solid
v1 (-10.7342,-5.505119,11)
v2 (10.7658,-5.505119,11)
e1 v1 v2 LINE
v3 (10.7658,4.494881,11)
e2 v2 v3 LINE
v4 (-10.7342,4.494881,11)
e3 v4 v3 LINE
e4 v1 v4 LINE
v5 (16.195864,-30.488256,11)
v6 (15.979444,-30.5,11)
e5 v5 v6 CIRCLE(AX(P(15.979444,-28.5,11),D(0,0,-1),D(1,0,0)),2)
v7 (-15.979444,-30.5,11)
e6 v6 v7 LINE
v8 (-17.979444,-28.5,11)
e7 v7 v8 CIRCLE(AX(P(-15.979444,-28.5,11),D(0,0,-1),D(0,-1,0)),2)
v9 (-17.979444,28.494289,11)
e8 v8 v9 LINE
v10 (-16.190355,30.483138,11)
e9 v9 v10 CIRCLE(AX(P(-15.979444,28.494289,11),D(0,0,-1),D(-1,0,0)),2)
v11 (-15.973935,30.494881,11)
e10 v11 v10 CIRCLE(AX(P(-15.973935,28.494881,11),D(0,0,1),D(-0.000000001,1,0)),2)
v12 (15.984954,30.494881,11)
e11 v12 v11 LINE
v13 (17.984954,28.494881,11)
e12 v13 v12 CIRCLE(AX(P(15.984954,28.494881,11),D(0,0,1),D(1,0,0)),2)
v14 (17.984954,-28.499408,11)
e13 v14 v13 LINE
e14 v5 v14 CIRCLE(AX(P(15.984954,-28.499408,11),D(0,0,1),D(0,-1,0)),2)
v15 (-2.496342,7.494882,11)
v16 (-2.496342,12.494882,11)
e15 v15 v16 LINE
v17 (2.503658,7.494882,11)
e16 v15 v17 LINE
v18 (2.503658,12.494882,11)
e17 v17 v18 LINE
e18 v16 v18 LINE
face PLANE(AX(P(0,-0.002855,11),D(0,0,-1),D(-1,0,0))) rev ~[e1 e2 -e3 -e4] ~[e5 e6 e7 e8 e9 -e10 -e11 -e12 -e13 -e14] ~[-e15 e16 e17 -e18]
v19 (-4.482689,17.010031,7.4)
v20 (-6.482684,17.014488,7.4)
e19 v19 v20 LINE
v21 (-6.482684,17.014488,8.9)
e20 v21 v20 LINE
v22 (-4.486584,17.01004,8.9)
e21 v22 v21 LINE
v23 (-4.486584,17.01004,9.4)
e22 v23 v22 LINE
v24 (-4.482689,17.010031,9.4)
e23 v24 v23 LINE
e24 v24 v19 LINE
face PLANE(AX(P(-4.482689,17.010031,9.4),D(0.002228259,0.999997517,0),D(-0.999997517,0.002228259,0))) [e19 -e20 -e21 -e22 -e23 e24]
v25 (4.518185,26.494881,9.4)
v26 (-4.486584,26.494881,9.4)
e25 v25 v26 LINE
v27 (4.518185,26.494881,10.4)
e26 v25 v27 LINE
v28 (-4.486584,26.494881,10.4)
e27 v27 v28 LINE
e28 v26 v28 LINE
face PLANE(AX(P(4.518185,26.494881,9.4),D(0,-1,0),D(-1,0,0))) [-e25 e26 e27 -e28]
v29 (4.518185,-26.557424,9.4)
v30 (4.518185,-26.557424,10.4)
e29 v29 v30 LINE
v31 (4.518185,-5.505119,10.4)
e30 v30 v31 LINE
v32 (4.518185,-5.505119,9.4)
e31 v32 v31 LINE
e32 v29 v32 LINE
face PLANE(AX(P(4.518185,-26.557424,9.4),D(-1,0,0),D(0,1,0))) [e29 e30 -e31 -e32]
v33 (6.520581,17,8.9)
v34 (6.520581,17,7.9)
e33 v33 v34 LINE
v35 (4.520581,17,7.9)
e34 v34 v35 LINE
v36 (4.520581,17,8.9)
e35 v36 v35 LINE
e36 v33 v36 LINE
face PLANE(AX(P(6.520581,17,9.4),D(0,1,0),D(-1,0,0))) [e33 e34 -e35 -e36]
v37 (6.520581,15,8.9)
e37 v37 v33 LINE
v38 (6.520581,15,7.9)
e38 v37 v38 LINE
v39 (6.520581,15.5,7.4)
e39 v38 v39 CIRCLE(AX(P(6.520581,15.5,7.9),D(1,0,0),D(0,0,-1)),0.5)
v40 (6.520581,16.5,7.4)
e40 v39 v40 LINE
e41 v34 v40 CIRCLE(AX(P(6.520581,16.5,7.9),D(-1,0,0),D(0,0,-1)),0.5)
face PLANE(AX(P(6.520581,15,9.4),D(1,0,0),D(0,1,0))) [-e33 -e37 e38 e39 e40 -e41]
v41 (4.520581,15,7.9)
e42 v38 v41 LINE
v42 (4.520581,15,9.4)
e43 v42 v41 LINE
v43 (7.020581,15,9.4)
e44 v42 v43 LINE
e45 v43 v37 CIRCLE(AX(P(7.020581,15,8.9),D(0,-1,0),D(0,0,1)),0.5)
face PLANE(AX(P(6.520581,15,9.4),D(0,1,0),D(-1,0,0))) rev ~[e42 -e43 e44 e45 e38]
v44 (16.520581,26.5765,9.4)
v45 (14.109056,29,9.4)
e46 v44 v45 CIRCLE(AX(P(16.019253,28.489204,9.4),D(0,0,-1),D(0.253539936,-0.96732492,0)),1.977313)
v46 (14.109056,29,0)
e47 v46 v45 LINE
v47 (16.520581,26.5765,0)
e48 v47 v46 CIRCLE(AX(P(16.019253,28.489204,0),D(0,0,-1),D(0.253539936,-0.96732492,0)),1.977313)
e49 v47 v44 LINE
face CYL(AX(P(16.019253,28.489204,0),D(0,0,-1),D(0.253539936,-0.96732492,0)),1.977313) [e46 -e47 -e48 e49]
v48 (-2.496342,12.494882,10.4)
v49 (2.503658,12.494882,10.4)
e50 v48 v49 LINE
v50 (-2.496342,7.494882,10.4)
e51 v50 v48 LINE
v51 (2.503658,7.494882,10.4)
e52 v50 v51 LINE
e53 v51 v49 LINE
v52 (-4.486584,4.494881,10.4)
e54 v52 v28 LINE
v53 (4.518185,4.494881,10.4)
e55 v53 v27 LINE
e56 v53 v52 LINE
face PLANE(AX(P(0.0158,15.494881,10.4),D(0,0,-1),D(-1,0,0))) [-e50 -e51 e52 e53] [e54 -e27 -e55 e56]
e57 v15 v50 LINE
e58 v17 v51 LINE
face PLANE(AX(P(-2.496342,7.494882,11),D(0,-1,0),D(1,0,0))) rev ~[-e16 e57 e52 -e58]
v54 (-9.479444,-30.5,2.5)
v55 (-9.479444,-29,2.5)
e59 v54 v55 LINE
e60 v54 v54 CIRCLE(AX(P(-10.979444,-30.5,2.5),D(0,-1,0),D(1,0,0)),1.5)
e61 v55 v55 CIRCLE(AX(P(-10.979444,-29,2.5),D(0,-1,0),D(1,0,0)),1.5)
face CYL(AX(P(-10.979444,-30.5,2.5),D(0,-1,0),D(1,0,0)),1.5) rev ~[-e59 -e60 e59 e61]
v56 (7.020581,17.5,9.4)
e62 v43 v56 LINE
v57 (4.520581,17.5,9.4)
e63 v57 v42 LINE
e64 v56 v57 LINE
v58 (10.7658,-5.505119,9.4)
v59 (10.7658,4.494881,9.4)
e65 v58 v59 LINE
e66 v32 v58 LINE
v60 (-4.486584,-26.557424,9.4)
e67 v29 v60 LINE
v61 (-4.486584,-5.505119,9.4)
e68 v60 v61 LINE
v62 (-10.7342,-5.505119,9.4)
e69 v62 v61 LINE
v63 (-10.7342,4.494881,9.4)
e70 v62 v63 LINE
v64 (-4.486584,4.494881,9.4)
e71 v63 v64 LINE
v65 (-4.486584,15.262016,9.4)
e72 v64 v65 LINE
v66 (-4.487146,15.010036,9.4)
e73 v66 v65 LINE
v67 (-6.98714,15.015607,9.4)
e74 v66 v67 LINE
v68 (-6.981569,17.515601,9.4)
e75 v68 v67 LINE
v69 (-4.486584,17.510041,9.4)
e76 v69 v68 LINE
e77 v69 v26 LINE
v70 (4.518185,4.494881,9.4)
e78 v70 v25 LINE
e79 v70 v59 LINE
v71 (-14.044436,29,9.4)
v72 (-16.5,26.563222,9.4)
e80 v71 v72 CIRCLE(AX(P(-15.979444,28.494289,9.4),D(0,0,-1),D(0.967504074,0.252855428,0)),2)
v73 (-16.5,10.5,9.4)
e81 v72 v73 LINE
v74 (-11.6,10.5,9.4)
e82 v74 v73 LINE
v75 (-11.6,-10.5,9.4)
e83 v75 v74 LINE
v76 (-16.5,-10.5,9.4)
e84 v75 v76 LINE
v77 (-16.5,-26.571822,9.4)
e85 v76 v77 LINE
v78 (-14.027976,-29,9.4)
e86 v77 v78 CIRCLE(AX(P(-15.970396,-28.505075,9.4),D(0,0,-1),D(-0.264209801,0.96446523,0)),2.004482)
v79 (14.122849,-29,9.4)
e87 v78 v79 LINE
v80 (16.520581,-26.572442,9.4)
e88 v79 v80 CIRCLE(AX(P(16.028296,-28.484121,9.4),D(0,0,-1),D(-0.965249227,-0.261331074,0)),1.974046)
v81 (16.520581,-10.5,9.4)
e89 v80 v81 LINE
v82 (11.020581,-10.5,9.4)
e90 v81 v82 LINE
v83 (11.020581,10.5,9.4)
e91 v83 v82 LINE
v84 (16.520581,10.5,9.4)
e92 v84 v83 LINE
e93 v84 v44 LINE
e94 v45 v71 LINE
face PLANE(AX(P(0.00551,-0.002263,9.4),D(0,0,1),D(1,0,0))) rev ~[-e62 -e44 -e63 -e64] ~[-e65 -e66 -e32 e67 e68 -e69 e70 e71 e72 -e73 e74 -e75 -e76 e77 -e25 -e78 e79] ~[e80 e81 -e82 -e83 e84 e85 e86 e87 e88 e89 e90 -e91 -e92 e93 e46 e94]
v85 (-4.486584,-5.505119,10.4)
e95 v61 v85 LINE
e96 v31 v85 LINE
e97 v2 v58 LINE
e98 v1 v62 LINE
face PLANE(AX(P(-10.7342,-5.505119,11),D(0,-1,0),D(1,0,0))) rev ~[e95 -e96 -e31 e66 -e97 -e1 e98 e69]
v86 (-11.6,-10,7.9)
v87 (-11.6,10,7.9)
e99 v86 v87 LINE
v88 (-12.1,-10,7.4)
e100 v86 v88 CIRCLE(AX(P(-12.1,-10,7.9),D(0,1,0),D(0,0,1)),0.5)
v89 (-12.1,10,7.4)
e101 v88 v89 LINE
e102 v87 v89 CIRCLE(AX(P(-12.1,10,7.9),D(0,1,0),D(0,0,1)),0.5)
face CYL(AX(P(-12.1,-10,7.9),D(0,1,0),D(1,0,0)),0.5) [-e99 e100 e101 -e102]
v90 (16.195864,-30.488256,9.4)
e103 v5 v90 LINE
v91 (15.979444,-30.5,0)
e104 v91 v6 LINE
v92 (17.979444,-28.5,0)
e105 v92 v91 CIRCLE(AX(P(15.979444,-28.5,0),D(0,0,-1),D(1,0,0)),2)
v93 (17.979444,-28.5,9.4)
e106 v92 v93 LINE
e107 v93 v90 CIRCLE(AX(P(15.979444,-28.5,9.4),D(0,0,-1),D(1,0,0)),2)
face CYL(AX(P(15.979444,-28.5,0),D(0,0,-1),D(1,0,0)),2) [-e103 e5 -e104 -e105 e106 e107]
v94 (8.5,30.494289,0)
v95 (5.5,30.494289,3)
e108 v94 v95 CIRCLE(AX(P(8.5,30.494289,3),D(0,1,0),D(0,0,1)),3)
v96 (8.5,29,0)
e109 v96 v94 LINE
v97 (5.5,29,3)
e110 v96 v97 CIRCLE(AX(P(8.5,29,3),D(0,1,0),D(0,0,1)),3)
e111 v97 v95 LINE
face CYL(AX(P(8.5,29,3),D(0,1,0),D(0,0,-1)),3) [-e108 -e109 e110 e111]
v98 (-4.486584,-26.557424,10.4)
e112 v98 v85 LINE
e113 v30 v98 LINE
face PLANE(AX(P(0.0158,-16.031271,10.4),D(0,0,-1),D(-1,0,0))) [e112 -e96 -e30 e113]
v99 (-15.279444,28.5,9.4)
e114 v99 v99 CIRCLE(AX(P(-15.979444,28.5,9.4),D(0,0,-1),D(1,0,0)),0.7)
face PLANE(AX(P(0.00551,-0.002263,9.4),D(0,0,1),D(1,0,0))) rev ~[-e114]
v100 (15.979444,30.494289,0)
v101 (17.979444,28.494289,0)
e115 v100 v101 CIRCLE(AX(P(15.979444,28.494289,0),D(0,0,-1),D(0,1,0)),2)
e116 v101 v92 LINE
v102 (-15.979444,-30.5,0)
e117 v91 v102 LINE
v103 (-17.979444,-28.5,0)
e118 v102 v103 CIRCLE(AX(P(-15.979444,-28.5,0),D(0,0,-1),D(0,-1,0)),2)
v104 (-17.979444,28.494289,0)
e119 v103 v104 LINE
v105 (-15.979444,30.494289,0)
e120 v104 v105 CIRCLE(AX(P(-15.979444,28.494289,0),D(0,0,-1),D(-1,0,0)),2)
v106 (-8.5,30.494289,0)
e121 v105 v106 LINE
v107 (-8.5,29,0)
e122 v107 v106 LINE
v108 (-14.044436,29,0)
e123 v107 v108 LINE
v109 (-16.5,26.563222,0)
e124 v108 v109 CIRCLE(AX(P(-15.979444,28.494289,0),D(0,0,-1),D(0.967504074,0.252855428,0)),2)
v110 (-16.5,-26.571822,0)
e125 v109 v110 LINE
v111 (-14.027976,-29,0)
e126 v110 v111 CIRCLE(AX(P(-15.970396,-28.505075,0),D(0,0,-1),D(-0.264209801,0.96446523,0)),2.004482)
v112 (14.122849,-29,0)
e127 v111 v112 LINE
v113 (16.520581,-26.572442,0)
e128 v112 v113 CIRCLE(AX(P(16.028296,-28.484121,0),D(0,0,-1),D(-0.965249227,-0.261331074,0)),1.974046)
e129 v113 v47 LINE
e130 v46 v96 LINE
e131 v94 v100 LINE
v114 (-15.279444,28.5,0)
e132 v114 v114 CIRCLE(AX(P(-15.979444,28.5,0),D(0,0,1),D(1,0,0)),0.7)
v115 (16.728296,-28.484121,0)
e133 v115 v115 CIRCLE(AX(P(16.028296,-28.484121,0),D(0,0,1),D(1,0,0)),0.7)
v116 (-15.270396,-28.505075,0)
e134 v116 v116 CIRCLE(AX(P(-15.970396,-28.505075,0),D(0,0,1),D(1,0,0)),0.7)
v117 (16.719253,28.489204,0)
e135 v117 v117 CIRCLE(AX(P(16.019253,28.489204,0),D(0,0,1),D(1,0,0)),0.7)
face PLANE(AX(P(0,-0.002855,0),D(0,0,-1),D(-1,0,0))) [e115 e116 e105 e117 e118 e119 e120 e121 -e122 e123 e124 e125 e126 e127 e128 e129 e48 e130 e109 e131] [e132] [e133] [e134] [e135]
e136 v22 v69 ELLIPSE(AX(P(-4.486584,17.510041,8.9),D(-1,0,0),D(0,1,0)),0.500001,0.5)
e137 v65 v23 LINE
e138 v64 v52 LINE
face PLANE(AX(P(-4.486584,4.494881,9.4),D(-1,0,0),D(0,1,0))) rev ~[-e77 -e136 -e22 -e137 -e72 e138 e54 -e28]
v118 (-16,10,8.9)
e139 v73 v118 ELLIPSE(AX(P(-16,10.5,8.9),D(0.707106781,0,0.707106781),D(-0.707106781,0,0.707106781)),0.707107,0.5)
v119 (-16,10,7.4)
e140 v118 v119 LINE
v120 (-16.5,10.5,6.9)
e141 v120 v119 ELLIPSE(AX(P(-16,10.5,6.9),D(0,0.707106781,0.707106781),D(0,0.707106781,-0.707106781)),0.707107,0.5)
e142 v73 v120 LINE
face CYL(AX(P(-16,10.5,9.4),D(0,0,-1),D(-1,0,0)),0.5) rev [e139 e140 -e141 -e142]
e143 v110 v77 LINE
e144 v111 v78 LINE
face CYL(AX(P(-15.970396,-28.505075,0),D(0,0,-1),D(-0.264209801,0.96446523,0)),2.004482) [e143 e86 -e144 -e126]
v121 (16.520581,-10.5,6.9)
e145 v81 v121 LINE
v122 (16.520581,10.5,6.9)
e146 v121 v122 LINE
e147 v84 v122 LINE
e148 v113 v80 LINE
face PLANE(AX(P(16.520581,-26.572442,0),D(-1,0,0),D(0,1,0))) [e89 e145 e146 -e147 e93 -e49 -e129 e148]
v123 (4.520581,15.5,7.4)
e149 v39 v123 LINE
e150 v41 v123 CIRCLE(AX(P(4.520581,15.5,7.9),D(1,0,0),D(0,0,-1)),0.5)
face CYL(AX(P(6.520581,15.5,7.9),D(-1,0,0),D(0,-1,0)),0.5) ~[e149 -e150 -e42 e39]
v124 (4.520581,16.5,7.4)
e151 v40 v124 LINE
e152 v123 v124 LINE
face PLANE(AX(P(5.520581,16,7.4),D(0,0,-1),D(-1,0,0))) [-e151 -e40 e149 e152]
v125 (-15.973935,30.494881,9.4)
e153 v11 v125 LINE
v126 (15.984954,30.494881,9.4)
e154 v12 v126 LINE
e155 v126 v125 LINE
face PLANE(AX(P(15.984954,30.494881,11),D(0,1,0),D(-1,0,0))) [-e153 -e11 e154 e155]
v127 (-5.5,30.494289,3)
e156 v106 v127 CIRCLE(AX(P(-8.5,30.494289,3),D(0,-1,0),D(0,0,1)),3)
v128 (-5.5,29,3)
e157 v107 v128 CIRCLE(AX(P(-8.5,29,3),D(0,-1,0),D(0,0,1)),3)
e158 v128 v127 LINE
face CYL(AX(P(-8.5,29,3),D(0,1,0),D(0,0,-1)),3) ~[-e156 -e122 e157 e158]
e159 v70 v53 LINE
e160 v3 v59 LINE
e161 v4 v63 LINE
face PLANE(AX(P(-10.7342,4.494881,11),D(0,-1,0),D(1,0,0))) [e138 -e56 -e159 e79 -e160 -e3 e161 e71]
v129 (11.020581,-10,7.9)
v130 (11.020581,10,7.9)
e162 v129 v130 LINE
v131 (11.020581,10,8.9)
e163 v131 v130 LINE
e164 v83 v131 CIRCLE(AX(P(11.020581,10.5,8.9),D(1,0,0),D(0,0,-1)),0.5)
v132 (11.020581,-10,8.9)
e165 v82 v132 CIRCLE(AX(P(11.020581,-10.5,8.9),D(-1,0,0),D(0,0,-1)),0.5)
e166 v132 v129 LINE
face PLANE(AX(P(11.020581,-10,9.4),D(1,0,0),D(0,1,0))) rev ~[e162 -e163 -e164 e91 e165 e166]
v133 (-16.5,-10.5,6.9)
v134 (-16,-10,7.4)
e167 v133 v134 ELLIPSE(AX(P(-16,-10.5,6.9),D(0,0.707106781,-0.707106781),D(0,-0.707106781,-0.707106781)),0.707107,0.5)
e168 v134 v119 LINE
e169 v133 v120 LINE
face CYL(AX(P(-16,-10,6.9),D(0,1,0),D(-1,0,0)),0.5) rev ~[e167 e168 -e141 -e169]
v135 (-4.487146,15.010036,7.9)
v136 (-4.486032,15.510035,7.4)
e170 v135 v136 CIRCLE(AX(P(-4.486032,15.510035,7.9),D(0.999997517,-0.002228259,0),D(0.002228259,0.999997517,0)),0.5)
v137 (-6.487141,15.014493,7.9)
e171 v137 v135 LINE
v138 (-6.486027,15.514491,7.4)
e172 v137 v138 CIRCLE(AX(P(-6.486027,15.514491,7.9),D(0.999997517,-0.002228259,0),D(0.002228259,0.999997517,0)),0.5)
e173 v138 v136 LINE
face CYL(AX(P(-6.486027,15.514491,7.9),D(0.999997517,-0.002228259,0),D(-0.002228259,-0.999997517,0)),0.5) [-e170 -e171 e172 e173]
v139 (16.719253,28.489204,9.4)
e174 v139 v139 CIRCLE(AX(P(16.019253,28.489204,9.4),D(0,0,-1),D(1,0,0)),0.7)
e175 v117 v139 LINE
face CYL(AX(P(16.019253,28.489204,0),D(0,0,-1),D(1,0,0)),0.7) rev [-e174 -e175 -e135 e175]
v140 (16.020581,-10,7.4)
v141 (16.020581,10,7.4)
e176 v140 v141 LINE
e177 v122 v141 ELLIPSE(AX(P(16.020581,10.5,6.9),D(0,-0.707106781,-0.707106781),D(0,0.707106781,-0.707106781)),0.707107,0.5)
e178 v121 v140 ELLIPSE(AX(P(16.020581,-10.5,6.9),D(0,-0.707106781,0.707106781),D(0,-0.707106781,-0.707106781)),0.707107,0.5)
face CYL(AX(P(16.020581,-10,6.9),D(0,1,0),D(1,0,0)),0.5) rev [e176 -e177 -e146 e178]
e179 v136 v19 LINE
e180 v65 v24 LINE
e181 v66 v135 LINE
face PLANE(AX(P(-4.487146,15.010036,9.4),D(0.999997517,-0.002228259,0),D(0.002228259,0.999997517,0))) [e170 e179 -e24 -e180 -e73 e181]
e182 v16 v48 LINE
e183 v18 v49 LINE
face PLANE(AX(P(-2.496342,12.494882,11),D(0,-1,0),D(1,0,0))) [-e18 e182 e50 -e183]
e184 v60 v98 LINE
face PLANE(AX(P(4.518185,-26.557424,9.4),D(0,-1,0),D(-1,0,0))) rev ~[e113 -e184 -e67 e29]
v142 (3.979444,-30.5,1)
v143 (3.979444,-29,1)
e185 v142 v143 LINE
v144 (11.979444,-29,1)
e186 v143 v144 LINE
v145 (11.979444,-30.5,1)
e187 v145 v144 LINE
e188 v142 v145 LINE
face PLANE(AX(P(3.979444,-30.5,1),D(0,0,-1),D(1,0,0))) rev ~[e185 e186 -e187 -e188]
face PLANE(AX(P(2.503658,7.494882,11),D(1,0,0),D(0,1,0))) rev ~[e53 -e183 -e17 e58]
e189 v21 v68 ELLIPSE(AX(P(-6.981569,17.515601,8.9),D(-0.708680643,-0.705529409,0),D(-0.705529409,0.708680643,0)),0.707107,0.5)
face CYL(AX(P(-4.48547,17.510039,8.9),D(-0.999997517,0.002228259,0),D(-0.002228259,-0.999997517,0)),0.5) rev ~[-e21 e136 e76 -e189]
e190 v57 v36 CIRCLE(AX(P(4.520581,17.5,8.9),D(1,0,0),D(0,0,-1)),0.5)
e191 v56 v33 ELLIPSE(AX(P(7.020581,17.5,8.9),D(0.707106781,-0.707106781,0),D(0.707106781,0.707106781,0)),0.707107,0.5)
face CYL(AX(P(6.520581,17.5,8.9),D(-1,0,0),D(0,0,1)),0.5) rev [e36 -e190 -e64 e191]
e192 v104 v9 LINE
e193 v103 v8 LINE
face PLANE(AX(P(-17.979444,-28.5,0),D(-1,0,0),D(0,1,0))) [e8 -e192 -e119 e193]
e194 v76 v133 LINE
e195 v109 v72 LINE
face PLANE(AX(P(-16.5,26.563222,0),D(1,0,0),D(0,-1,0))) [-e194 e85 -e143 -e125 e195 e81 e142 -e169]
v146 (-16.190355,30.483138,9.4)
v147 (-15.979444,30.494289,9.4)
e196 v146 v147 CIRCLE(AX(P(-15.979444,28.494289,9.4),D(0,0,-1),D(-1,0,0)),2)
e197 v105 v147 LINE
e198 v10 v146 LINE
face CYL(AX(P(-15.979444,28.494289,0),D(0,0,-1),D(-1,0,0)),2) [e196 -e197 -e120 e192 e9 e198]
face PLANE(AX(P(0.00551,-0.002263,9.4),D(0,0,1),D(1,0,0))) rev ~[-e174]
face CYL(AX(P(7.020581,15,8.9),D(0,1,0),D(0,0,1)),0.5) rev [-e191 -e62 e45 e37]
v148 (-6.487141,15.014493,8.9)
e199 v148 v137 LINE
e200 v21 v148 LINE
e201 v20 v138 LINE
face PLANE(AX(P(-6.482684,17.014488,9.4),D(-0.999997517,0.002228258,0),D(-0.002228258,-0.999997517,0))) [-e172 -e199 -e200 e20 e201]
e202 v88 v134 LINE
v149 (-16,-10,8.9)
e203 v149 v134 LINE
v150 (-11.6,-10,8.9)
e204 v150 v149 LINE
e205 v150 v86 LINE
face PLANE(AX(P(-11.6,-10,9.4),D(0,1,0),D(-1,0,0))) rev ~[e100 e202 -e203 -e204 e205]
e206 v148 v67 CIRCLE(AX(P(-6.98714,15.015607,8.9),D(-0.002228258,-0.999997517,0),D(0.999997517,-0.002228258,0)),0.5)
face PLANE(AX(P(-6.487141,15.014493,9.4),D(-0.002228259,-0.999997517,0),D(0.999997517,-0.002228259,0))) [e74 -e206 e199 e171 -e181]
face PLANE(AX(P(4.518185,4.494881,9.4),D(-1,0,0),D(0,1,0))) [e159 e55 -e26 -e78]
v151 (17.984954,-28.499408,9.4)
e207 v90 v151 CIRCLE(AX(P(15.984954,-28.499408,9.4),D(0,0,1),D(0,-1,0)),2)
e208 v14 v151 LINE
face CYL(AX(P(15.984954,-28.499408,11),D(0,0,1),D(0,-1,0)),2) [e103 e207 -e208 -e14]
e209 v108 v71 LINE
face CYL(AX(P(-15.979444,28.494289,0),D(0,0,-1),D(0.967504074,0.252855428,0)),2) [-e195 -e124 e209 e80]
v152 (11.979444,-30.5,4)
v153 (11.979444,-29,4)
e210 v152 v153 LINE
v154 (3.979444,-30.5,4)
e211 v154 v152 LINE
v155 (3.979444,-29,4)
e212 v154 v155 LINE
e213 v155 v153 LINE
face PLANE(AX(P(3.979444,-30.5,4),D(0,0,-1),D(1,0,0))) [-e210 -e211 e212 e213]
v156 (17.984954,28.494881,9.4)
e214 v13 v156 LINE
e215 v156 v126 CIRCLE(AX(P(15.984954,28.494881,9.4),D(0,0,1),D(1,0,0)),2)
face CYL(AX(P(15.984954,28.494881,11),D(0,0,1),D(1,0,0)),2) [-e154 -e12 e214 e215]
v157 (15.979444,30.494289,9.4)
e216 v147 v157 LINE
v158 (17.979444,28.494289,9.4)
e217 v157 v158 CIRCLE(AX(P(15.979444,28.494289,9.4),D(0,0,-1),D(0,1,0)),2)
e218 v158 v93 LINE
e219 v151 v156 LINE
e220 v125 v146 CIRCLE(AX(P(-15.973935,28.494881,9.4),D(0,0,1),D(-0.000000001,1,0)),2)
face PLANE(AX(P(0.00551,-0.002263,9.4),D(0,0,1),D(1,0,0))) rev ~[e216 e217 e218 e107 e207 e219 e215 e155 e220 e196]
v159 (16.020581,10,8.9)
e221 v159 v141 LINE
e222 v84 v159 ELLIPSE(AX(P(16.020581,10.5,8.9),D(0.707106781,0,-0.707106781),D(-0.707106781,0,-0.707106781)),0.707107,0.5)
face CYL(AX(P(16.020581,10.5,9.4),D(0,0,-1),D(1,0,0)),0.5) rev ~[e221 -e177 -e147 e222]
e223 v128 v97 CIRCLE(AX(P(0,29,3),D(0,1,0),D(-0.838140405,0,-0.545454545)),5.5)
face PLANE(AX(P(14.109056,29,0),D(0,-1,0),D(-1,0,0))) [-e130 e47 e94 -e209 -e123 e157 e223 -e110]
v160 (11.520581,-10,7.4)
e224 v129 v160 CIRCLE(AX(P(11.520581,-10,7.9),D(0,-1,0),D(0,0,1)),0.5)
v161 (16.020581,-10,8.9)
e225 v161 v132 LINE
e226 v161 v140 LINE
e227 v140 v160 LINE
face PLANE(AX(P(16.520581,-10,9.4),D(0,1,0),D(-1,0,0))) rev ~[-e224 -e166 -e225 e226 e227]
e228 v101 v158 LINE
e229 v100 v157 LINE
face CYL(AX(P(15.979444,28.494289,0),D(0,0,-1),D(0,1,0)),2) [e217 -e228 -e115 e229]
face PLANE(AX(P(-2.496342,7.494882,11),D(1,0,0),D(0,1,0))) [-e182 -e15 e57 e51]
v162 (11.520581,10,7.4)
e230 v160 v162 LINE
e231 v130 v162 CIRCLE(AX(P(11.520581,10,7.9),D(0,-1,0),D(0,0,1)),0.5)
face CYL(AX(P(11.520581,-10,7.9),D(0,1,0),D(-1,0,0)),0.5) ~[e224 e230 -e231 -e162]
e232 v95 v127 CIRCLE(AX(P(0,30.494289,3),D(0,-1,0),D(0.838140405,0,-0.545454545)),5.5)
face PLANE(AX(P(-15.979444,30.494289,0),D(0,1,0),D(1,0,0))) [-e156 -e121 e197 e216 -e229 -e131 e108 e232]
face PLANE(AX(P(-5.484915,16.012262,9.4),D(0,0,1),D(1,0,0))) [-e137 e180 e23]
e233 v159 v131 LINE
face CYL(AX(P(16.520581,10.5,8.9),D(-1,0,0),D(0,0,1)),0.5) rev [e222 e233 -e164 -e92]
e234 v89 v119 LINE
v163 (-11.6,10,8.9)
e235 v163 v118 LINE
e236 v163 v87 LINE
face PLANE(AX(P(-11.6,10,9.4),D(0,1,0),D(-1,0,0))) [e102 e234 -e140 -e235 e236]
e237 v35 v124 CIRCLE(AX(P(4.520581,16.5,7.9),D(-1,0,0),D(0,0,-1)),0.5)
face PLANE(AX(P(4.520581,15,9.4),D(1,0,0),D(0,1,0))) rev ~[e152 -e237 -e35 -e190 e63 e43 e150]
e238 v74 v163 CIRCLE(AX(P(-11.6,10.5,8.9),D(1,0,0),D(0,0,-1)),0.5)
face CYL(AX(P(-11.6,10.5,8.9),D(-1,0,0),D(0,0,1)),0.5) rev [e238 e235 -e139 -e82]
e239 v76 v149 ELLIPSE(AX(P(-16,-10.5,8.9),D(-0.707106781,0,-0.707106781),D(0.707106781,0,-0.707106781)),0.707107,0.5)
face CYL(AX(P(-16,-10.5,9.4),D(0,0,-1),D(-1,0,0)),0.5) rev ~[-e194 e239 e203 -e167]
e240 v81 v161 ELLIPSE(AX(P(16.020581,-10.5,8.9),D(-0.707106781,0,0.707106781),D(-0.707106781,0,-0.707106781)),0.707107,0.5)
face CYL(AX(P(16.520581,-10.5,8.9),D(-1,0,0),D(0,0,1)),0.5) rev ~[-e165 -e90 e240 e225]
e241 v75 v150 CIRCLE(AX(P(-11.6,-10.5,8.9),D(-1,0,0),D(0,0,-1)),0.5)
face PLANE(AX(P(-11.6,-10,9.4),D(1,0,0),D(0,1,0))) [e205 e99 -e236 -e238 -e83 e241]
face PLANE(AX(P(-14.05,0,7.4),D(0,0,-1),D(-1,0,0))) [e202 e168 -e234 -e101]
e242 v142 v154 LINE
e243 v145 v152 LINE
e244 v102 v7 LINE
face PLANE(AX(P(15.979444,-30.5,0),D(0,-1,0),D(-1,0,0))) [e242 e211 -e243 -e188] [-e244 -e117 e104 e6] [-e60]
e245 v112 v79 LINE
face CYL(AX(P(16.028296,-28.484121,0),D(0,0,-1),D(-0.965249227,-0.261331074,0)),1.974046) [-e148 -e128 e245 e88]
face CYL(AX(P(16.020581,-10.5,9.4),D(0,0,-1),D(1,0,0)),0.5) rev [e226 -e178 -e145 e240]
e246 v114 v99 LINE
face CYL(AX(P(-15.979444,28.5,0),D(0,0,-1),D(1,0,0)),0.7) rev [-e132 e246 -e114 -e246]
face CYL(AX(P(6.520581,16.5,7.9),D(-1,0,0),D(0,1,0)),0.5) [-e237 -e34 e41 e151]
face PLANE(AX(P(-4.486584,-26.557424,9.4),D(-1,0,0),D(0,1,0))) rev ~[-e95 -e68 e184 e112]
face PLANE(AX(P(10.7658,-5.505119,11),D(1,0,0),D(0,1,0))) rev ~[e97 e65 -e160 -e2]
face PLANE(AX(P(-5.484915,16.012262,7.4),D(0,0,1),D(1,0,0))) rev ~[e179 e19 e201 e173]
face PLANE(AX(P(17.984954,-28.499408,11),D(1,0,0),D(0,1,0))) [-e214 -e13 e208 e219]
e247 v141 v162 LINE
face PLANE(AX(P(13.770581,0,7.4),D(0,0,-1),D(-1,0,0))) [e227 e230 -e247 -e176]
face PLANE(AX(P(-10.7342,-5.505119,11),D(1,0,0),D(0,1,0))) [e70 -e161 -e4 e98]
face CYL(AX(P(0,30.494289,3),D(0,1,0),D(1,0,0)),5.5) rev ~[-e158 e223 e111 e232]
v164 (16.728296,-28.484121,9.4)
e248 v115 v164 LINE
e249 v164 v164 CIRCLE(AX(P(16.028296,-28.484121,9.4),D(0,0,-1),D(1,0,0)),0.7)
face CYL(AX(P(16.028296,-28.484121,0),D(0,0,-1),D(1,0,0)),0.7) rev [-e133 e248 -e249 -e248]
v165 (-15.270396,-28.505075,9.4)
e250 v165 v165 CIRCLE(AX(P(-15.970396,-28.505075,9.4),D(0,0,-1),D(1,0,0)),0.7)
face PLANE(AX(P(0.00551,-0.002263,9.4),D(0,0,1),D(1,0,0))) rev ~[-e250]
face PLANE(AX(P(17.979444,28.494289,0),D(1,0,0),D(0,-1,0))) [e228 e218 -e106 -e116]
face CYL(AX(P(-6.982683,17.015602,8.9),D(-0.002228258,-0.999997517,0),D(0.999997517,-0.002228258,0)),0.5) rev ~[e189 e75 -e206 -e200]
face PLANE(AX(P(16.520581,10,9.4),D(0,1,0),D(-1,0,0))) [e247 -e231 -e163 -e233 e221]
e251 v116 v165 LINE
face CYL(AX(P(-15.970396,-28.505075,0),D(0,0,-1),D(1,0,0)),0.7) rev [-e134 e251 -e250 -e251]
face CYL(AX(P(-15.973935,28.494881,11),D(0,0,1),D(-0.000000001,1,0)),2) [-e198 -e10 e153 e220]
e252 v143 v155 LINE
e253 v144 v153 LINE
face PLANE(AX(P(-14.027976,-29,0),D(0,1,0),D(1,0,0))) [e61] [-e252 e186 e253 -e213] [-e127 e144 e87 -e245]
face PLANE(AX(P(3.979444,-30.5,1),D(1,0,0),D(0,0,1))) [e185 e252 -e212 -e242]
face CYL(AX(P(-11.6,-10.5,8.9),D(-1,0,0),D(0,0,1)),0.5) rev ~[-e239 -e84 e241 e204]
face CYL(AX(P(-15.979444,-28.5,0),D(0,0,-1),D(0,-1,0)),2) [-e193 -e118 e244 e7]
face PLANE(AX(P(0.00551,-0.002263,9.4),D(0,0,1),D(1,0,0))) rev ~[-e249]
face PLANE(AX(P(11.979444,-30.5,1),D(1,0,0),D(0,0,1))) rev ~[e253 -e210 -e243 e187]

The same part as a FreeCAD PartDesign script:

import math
import FreeCAD as App
import Part
import Sketcher
Q = App.Units.Quantity


def edges_at(feature, points):
    """Names of the edges that pass closest to the given points."""
    edges = feature.Shape.Edges
    near = lambda p: min(range(len(edges)), key=lambda i: edges[i].distToShape(Part.Vertex(*p))[0])
    return sorted({f"Edge{near(p) + 1}" for p in points})

doc = App.newDocument("Part")
body = doc.addObject("PartDesign::Body", "Body")

sketch1 = body.newObject("Sketcher::SketchObject", "Sketch")
sketch1.AttachmentSupport = (doc.getObject("XY_Plane"), [""])
sketch1.MapMode = "FlatFace"
sketch1.addGeometry(Part.LineSegment(App.Vector(16, 30.5, 0), App.Vector(-16, 30.5, 0)), False)
sketch1.addGeometry(Part.ArcOfCircle(Part.Circle(App.Vector(-16, 28.5, 0), App.Vector(0, 0, 1), 2), math.radians(90), math.radians(180)), False)
sketch1.addGeometry(Part.LineSegment(App.Vector(-18, 28.5, 0), App.Vector(-18, -28.5, 0)), False)
sketch1.addGeometry(Part.ArcOfCircle(Part.Circle(App.Vector(-16, -28.5, 0), App.Vector(0, 0, 1), 2), math.radians(180), math.radians(270)), False)
sketch1.addGeometry(Part.LineSegment(App.Vector(-16, -30.5, 0), App.Vector(16, -30.5, 0)), False)
sketch1.addGeometry(Part.ArcOfCircle(Part.Circle(App.Vector(16, -28.5, 0), App.Vector(0, 0, 1), 2), math.radians(-90), math.radians(0)), False)
sketch1.addGeometry(Part.LineSegment(App.Vector(18, -28.5, 0), App.Vector(18, 28.5, 0)), False)
sketch1.addGeometry(Part.ArcOfCircle(Part.Circle(App.Vector(16, 28.5, 0), App.Vector(0, 0, 1), 2), math.radians(0), math.radians(90)), False)
sketch1.addGeometry(Part.Circle(App.Vector(16, -28.5, 0), App.Vector(0, 0, 1), 0.7), False)
sketch1.addGeometry(Part.Circle(App.Vector(-16, -28.5, 0), App.Vector(0, 0, 1), 0.7), False)
sketch1.addGeometry(Part.Circle(App.Vector(16, 28.5, 0), App.Vector(0, 0, 1), 0.7), False)
sketch1.addGeometry(Part.ArcOfCircle(Part.Circle(App.Vector(-16, -28.5, 0), App.Vector(0, 0, 1), 2), math.radians(-14), math.radians(105)), False)
sketch1.addGeometry(Part.LineSegment(App.Vector(-16.5, -26.6, 0), App.Vector(-16.5, 26.6, 0)), False)
sketch1.addGeometry(Part.ArcOfCircle(Part.Circle(App.Vector(-16, 28.5, 0), App.Vector(0, 0, 1), 2), math.radians(-105), math.radians(15)), False)
sketch1.addGeometry(Part.LineSegment(App.Vector(-14, 29, 0), App.Vector(14.1, 29, 0)), False)
sketch1.addGeometry(Part.ArcOfCircle(Part.Circle(App.Vector(16, 28.5, 0), App.Vector(0, 0, 1), 2), math.radians(165), math.radians(285)), False)
sketch1.addGeometry(Part.LineSegment(App.Vector(16.5, 26.6, 0), App.Vector(16.5, -26.6, 0)), False)
sketch1.addGeometry(Part.ArcOfCircle(Part.Circle(App.Vector(16, -28.5, 0), App.Vector(0, 0, 1), 2), math.radians(76), math.radians(195)), False)
sketch1.addGeometry(Part.LineSegment(App.Vector(14.1, -29, 0), App.Vector(-14, -29, 0)), False)
sketch1.addGeometry(Part.Circle(App.Vector(-16, 28.5, 0), App.Vector(0, 0, 1), 0.7), False)
sketch1.addConstraint(Sketcher.Constraint("Tangent", 0, 2, 1, 1))
sketch1.addConstraint(Sketcher.Constraint("Tangent", 1, 2, 2, 1))
sketch1.addConstraint(Sketcher.Constraint("Tangent", 2, 2, 3, 1))
sketch1.addConstraint(Sketcher.Constraint("Tangent", 3, 2, 4, 1))
sketch1.addConstraint(Sketcher.Constraint("Tangent", 4, 2, 5, 1))
sketch1.addConstraint(Sketcher.Constraint("Tangent", 5, 2, 6, 1))
sketch1.addConstraint(Sketcher.Constraint("Tangent", 6, 2, 7, 1))
sketch1.addConstraint(Sketcher.Constraint("Tangent", 7, 2, 0, 1))
sketch1.addConstraint(Sketcher.Constraint("Coincident", 11, 2, 12, 1))
sketch1.addConstraint(Sketcher.Constraint("Coincident", 12, 2, 13, 1))
sketch1.addConstraint(Sketcher.Constraint("Coincident", 13, 2, 14, 1))
sketch1.addConstraint(Sketcher.Constraint("Coincident", 14, 2, 15, 1))
sketch1.addConstraint(Sketcher.Constraint("Coincident", 15, 2, 16, 1))
sketch1.addConstraint(Sketcher.Constraint("Coincident", 16, 2, 17, 1))
sketch1.addConstraint(Sketcher.Constraint("Coincident", 17, 2, 18, 1))
sketch1.addConstraint(Sketcher.Constraint("Coincident", 18, 2, 11, 1))
sketch1.addConstraint(Sketcher.Constraint("Horizontal", 0))
sketch1.addConstraint(Sketcher.Constraint("Vertical", 2))
sketch1.addConstraint(Sketcher.Constraint("Horizontal", 4))
sketch1.addConstraint(Sketcher.Constraint("Vertical", 6))
sketch1.addConstraint(Sketcher.Constraint("Vertical", 12))
sketch1.addConstraint(Sketcher.Constraint("Horizontal", 14))
sketch1.addConstraint(Sketcher.Constraint("Vertical", 16))
sketch1.addConstraint(Sketcher.Constraint("Horizontal", 18))
sketch1.addConstraint(Sketcher.Constraint("Coincident", 11, 3, 9, 3))
sketch1.addConstraint(Sketcher.Constraint("Coincident", 13, 3, 1, 3))
sketch1.addConstraint(Sketcher.Constraint("Coincident", 15, 3, 10, 3))
sketch1.addConstraint(Sketcher.Constraint("Coincident", 17, 3, 8, 3))
sketch1.addConstraint(Sketcher.Constraint("Equal", 1, 3))
sketch1.addConstraint(Sketcher.Constraint("Equal", 3, 5))
sketch1.addConstraint(Sketcher.Constraint("Equal", 5, 7))
sketch1.addConstraint(Sketcher.Constraint("Equal", 8, 9))
sketch1.addConstraint(Sketcher.Constraint("Equal", 9, 10))
sketch1.addConstraint(Sketcher.Constraint("Equal", 7, 13))
sketch1.addConstraint(Sketcher.Constraint("Equal", 10, 19))
sketch1.addConstraint(Sketcher.Constraint("Symmetric", 5, 3, 19, 3, -1, 1))
sketch1.addConstraint(Sketcher.Constraint("Vertical", 13, 3, 19, 3))
sketch1.addConstraint(Sketcher.Constraint("Radius", 1, Q("2 mm")))
sketch1.addConstraint(Sketcher.Constraint("Diameter", 8, Q("1.4 mm")))
sketch1.addConstraint(Sketcher.Constraint("DistanceY", -1, 1, 13, 2, Q("29 mm")))
sketch1.addConstraint(Sketcher.Constraint("DistanceY", 17, 2, -1, 1, Q("29 mm")))
sketch1.addConstraint(Sketcher.Constraint("DistanceY", 3, 3, -1, 1, Q("28.5 mm")))
sketch1.addConstraint(Sketcher.Constraint("DistanceX", 11, 2, -1, 1, Q("16.5 mm")))
sketch1.addConstraint(Sketcher.Constraint("Radius", 11, Q("2.004482 mm")))
sketch1.addConstraint(Sketcher.Constraint("Radius", 15, Q("1.977313 mm")))
sketch1.addConstraint(Sketcher.Constraint("Radius", 17, Q("1.974046 mm")))
sketch1.addConstraint(Sketcher.Constraint("DistanceX", 0, 2, 0, 1, Q("31.958889 mm")))
sketch1.addConstraint(Sketcher.Constraint("DistanceX", 14, 1, 14, 2, Q("28.153492 mm")))
sketch1.addConstraint(Sketcher.Constraint("DistanceY", 2, 2, 2, 1, Q("56.99429 mm")))
sketch1.addConstraint(Sketcher.Constraint("DistanceY", -1, 1, 15, 2, Q("26.5765 mm")))
sketch1.addConstraint(Sketcher.Constraint("DistanceX", 18, 2, 18, 1, Q("28.150825 mm")))
sketch1.addConstraint(Sketcher.Constraint("DistanceY", 12, 1, 12, 2, Q("53.135043 mm")))
sketch1.addConstraint(Sketcher.Constraint("DistanceY", 16, 2, 16, 1, Q("53.148942 mm")))
sketch1.addConstraint(Sketcher.Constraint("DistanceY", 8, 3, -1, 1, Q("28.484121 mm")))
sketch1.addConstraint(Sketcher.Constraint("DistanceX", -1, 1, 15, 2, Q("16.520581 mm")))
pad1 = body.newObject("PartDesign::Pad", "Pad")
pad1.Profile = sketch1
pad1.Length = 11

sketch2 = body.newObject("Sketcher::SketchObject", "Sketch001")
sketch2.AttachmentSupport = (doc.getObject("XY_Plane"), [""])
sketch2.MapMode = "FlatFace"
sketch2.AttachmentOffset = App.Placement(App.Vector(0, 0, 11), App.Rotation())
sketch2.addGeometry(Part.LineSegment(App.Vector(-18, 28.5, 0), App.Vector(-18, -28.5, 0)), False)
sketch2.addGeometry(Part.ArcOfCircle(Part.Circle(App.Vector(-16, -28.5, 0), App.Vector(0, 0, 1), 2), math.radians(-180), math.radians(-90)), False)
sketch2.addGeometry(Part.LineSegment(App.Vector(-16, -30.5, 0), App.Vector(16, -30.5, 0)), False)
sketch2.addGeometry(Part.ArcOfCircle(Part.Circle(App.Vector(16, -28.5, 0), App.Vector(0, 0, 1), 2), math.radians(-90), math.radians(0)), False)
sketch2.addGeometry(Part.LineSegment(App.Vector(18, -28.5, 0), App.Vector(18, 28.5, 0)), False)
sketch2.addGeometry(Part.ArcOfCircle(Part.Circle(App.Vector(16, 28.5, 0), App.Vector(0, 0, 1), 2), math.radians(0), math.radians(90)), False)
sketch2.addGeometry(Part.LineSegment(App.Vector(16, 30.5, 0), App.Vector(-16, 30.5, 0)), False)
sketch2.addGeometry(Part.ArcOfCircle(Part.Circle(App.Vector(-16, 28.5, 0), App.Vector(0, 0, 1), 2), math.radians(90), math.radians(180)), False)
sketch2.addGeometry(Part.LineSegment(App.Vector(10.8, -5.5, 0), App.Vector(-10.7, -5.5, 0)), False)
sketch2.addGeometry(Part.LineSegment(App.Vector(-10.7, -5.5, 0), App.Vector(-10.7, 4.5, 0)), False)
sketch2.addGeometry(Part.LineSegment(App.Vector(-10.7, 4.5, 0), App.Vector(10.8, 4.5, 0)), False)
sketch2.addGeometry(Part.LineSegment(App.Vector(10.8, 4.5, 0), App.Vector(10.8, -5.5, 0)), False)
sketch2.addConstraint(Sketcher.Constraint("Tangent", 0, 2, 1, 1))
sketch2.addConstraint(Sketcher.Constraint("Tangent", 1, 2, 2, 1))
sketch2.addConstraint(Sketcher.Constraint("Tangent", 2, 2, 3, 1))
sketch2.addConstraint(Sketcher.Constraint("Tangent", 3, 2, 4, 1))
sketch2.addConstraint(Sketcher.Constraint("Tangent", 4, 2, 5, 1))
sketch2.addConstraint(Sketcher.Constraint("Tangent", 5, 2, 6, 1))
sketch2.addConstraint(Sketcher.Constraint("Tangent", 6, 2, 7, 1))
sketch2.addConstraint(Sketcher.Constraint("Tangent", 7, 2, 0, 1))
sketch2.addConstraint(Sketcher.Constraint("Coincident", 8, 2, 9, 1))
sketch2.addConstraint(Sketcher.Constraint("Coincident", 9, 2, 10, 1))
sketch2.addConstraint(Sketcher.Constraint("Coincident", 10, 2, 11, 1))
sketch2.addConstraint(Sketcher.Constraint("Coincident", 11, 2, 8, 1))
sketch2.addConstraint(Sketcher.Constraint("Vertical", 0))
sketch2.addConstraint(Sketcher.Constraint("Horizontal", 2))
sketch2.addConstraint(Sketcher.Constraint("Vertical", 4))
sketch2.addConstraint(Sketcher.Constraint("Horizontal", 6))
sketch2.addConstraint(Sketcher.Constraint("Horizontal", 8))
sketch2.addConstraint(Sketcher.Constraint("Vertical", 9))
sketch2.addConstraint(Sketcher.Constraint("Horizontal", 10))
sketch2.addConstraint(Sketcher.Constraint("Vertical", 11))
sketch2.addConstraint(Sketcher.Constraint("Equal", 1, 3))
sketch2.addConstraint(Sketcher.Constraint("Equal", 3, 5))
sketch2.addConstraint(Sketcher.Constraint("Equal", 5, 7))
sketch2.addConstraint(Sketcher.Constraint("Radius", 1, Q("2 mm")))
sketch2.addConstraint(Sketcher.Constraint("DistanceY", 9, 1, 9, 2, Q("10 mm")))
sketch2.addConstraint(Sketcher.Constraint("DistanceX", 8, 2, 8, 1, Q("21.5 mm")))
sketch2.addConstraint(Sketcher.Constraint("DistanceY", 8, 2, 7, 3, Q("34 mm")))
sketch2.addConstraint(Sketcher.Constraint("DistanceX", 2, 1, 2, 2, Q("31.958889 mm")))
sketch2.addConstraint(Sketcher.Constraint("DistanceY", 0, 2, 0, 1, Q("56.99429 mm")))
sketch2.addConstraint(Sketcher.Constraint("DistanceX", 8, 2, -1, 1, Q("10.7342 mm")))
sketch2.addConstraint(Sketcher.Constraint("DistanceY", 1, 3, -1, 1, Q("28.499408 mm")))
sketch2.addConstraint(Sketcher.Constraint("DistanceX", 1, 3, -1, 1, Q("15.973935 mm")))
pad2 = body.newObject("PartDesign::Pad", "Pad001")
pad2.Profile = sketch2
pad2.Length = 1.6
pad2.Reversed = True

sketch3 = body.newObject("Sketcher::SketchObject", "Sketch002")
sketch3.AttachmentSupport = (doc.getObject("XY_Plane"), [""])
sketch3.MapMode = "FlatFace"
sketch3.AttachmentOffset = App.Placement(App.Vector(0, 0, 11), App.Rotation())
sketch3.addGeometry(Part.LineSegment(App.Vector(-2, 12, 0), App.Vector(-2, 7, 0)), False)
sketch3.addGeometry(Part.LineSegment(App.Vector(-2, 7, 0), App.Vector(3, 7, 0)), False)
sketch3.addGeometry(Part.LineSegment(App.Vector(3, 7, 0), App.Vector(3, 12, 0)), False)
sketch3.addGeometry(Part.LineSegment(App.Vector(3, 12, 0), App.Vector(-2, 12, 0)), False)
sketch3.addConstraint(Sketcher.Constraint("Coincident", 0, 2, 1, 1))
sketch3.addConstraint(Sketcher.Constraint("Coincident", 1, 2, 2, 1))
sketch3.addConstraint(Sketcher.Constraint("Coincident", 2, 2, 3, 1))
sketch3.addConstraint(Sketcher.Constraint("Coincident", 3, 2, 0, 1))
sketch3.addConstraint(Sketcher.Constraint("Vertical", 0))
sketch3.addConstraint(Sketcher.Constraint("Horizontal", 1))
sketch3.addConstraint(Sketcher.Constraint("Vertical", 2))
sketch3.addConstraint(Sketcher.Constraint("Horizontal", 3))
sketch3.addConstraint(Sketcher.Constraint("Equal", 3, 0))
sketch3.addConstraint(Sketcher.Constraint("DistanceX", 1, 1, 1, 2, Q("5 mm")))
sketch3.addConstraint(Sketcher.Constraint("DistanceY", -1, 1, 0, 2, Q("7.494882 mm")))
sketch3.addConstraint(Sketcher.Constraint("DistanceX", 0, 2, -1, 1, Q("2.496342 mm")))
pocket1 = body.newObject("PartDesign::Pocket", "Pocket")
pocket1.Profile = sketch3
pocket1.Length = 1

sketch4 = body.newObject("Sketcher::SketchObject", "Sketch003")
sketch4.AttachmentSupport = (doc.getObject("XZ_Plane"), [""])
sketch4.MapMode = "FlatFace"
sketch4.AttachmentOffset = App.Placement(App.Vector(0, 0, 30.5), App.Rotation())
sketch4.addGeometry(Part.Circle(App.Vector(-11, 2.5, 0), App.Vector(0, 0, 1), 1.5), False)
sketch4.addConstraint(Sketcher.Constraint("Diameter", 0, Q("3 mm")))
sketch4.addConstraint(Sketcher.Constraint("DistanceY", -1, 1, 0, 3, Q("2.5 mm")))
sketch4.addConstraint(Sketcher.Constraint("DistanceX", 0, 3, -1, 1, Q("10.979444 mm")))
pocket2 = body.newObject("PartDesign::Pocket", "Pocket001")
pocket2.Profile = sketch4
pocket2.Type = "UpToFirst"

sketch5 = body.newObject("Sketcher::SketchObject", "Sketch004")
sketch5.AttachmentSupport = (doc.getObject("XZ_Plane"), [""])
sketch5.MapMode = "FlatFace"
sketch5.AttachmentOffset = App.Placement(App.Vector(0, 0, 30.5), App.Rotation())
sketch5.addGeometry(Part.LineSegment(App.Vector(4, 4, 0), App.Vector(4, 1, 0)), False)
sketch5.addGeometry(Part.LineSegment(App.Vector(4, 1, 0), App.Vector(12, 1, 0)), False)
sketch5.addGeometry(Part.LineSegment(App.Vector(12, 1, 0), App.Vector(12, 4, 0)), False)
sketch5.addGeometry(Part.LineSegment(App.Vector(12, 4, 0), App.Vector(4, 4, 0)), False)
sketch5.addConstraint(Sketcher.Constraint("Coincident", 0, 2, 1, 1))
sketch5.addConstraint(Sketcher.Constraint("Coincident", 1, 2, 2, 1))
sketch5.addConstraint(Sketcher.Constraint("Coincident", 2, 2, 3, 1))
sketch5.addConstraint(Sketcher.Constraint("Coincident", 3, 2, 0, 1))
sketch5.addConstraint(Sketcher.Constraint("Vertical", 0))
sketch5.addConstraint(Sketcher.Constraint("Horizontal", 1))
sketch5.addConstraint(Sketcher.Constraint("Vertical", 2))
sketch5.addConstraint(Sketcher.Constraint("Horizontal", 3))
sketch5.addConstraint(Sketcher.Constraint("DistanceX", 1, 1, 1, 2, Q("8 mm")))
sketch5.addConstraint(Sketcher.Constraint("DistanceY", 0, 2, 0, 1, Q("3 mm")))
sketch5.addConstraint(Sketcher.Constraint("DistanceY", -1, 1, 0, 2, Q("1 mm")))
sketch5.addConstraint(Sketcher.Constraint("DistanceX", -1, 1, 0, 2, Q("3.979444 mm")))
pocket3 = body.newObject("PartDesign::Pocket", "Pocket002")
pocket3.Profile = sketch5
pocket3.Type = "UpToFirst"

sketch6 = body.newObject("Sketcher::SketchObject", "Sketch005")
sketch6.AttachmentSupport = (doc.getObject("XY_Plane"), [""])
sketch6.MapMode = "FlatFace"
sketch6.AttachmentOffset = App.Placement(App.Vector(0, 0, 9.4), App.Rotation())
sketch6.addGeometry(Part.LineSegment(App.Vector(5, 26, 0), App.Vector(5, 4, 0)), False)
sketch6.addGeometry(Part.LineSegment(App.Vector(5, 4, 0), App.Vector(-4, 4, 0)), False)
sketch6.addGeometry(Part.LineSegment(App.Vector(-4, 4, 0), App.Vector(-4, 26, 0)), False)
sketch6.addGeometry(Part.LineSegment(App.Vector(-4, 26, 0), App.Vector(5, 26, 0)), False)
sketch6.addGeometry(Part.LineSegment(App.Vector(5, -6, 0), App.Vector(5, -27, 0)), False)
sketch6.addGeometry(Part.LineSegment(App.Vector(5, -27, 0), App.Vector(-4, -27, 0)), False)
sketch6.addGeometry(Part.LineSegment(App.Vector(-4, -27, 0), App.Vector(-4, -6, 0)), False)
sketch6.addGeometry(Part.LineSegment(App.Vector(-4, -6, 0), App.Vector(5, -6, 0)), False)
sketch6.addConstraint(Sketcher.Constraint("Coincident", 0, 2, 1, 1))
sketch6.addConstraint(Sketcher.Constraint("Coincident", 1, 2, 2, 1))
sketch6.addConstraint(Sketcher.Constraint("Coincident", 2, 2, 3, 1))
sketch6.addConstraint(Sketcher.Constraint("Coincident", 3, 2, 0, 1))
sketch6.addConstraint(Sketcher.Constraint("Coincident", 4, 2, 5, 1))
sketch6.addConstraint(Sketcher.Constraint("Coincident", 5, 2, 6, 1))
sketch6.addConstraint(Sketcher.Constraint("Coincident", 6, 2, 7, 1))
sketch6.addConstraint(Sketcher.Constraint("Coincident", 7, 2, 4, 1))
sketch6.addConstraint(Sketcher.Constraint("Vertical", 0))
sketch6.addConstraint(Sketcher.Constraint("Horizontal", 1))
sketch6.addConstraint(Sketcher.Constraint("Vertical", 2))
sketch6.addConstraint(Sketcher.Constraint("Horizontal", 3))
sketch6.addConstraint(Sketcher.Constraint("Vertical", 4))
sketch6.addConstraint(Sketcher.Constraint("Horizontal", 5))
sketch6.addConstraint(Sketcher.Constraint("Vertical", 6))
sketch6.addConstraint(Sketcher.Constraint("Horizontal", 7))
sketch6.addConstraint(Sketcher.Constraint("Vertical", 3, 2, 4, 2))
sketch6.addConstraint(Sketcher.Constraint("Vertical", 2, 2, 5, 2))
sketch6.addConstraint(Sketcher.Constraint("DistanceY", 0, 2, 0, 1, Q("22 mm")))
sketch6.addConstraint(Sketcher.Constraint("DistanceY", 6, 2, 1, 2, Q("10 mm")))
sketch6.addConstraint(Sketcher.Constraint("DistanceX", 1, 2, 1, 1, Q("9.004769 mm")))
sketch6.addConstraint(Sketcher.Constraint("DistanceY", 4, 2, 4, 1, Q("21.052306 mm")))
sketch6.addConstraint(Sketcher.Constraint("DistanceY", -1, 1, 0, 2, Q("4.494881 mm")))
sketch6.addConstraint(Sketcher.Constraint("DistanceX", -1, 1, 0, 2, Q("4.518185 mm")))
pocket4 = body.newObject("PartDesign::Pocket", "Pocket003")
pocket4.Profile = sketch6
pocket4.Length = 1
pocket4.Reversed = True

sketch7 = body.newObject("Sketcher::SketchObject", "Sketch006")
sketch7.AttachmentSupport = (doc.getObject("XY_Plane"), [""])
sketch7.MapMode = "FlatFace"
sketch7.AttachmentOffset = App.Placement(App.Vector(0, 0, 9.4), App.Rotation())
sketch7.addGeometry(Part.LineSegment(App.Vector(16.5, 10, 0), App.Vector(16.5, -10, 0)), False)
sketch7.addGeometry(Part.LineSegment(App.Vector(16.5, -10, 0), App.Vector(11, -10, 0)), False)
sketch7.addGeometry(Part.LineSegment(App.Vector(11, -10, 0), App.Vector(11, 10, 0)), False)
sketch7.addGeometry(Part.LineSegment(App.Vector(11, 10, 0), App.Vector(16.5, 10, 0)), False)
sketch7.addGeometry(Part.LineSegment(App.Vector(-11.6, 10, 0), App.Vector(-11.6, -10, 0)), False)
sketch7.addGeometry(Part.LineSegment(App.Vector(-11.6, -10, 0), App.Vector(-16.5, -10, 0)), False)
sketch7.addGeometry(Part.LineSegment(App.Vector(-16.5, -10, 0), App.Vector(-16.5, 10, 0)), False)
sketch7.addGeometry(Part.LineSegment(App.Vector(-16.5, 10, 0), App.Vector(-11.6, 10, 0)), False)
sketch7.addGeometry(Part.LineSegment(App.Vector(6.5, 17, 0), App.Vector(6.5, 15, 0)), False)
sketch7.addGeometry(Part.LineSegment(App.Vector(6.5, 15, 0), App.Vector(4.5, 15, 0)), False)
sketch7.addGeometry(Part.LineSegment(App.Vector(4.5, 15, 0), App.Vector(4.5, 17, 0)), False)
sketch7.addGeometry(Part.LineSegment(App.Vector(4.5, 17, 0), App.Vector(6.5, 17, 0)), False)
sketch7.addGeometry(Part.LineSegment(App.Vector(-6.5, 15, 0), App.Vector(-6.5, 17, 0)), False)
sketch7.addGeometry(Part.LineSegment(App.Vector(-6.5, 17, 0), App.Vector(-4.5, 17, 0)), False)
sketch7.addGeometry(Part.LineSegment(App.Vector(-4.5, 17, 0), App.Vector(-4.5, 15, 0)), False)
sketch7.addGeometry(Part.LineSegment(App.Vector(-4.5, 15, 0), App.Vector(-6.5, 15, 0)), False)
sketch7.addConstraint(Sketcher.Constraint("Coincident", 0, 2, 1, 1))
sketch7.addConstraint(Sketcher.Constraint("Coincident", 1, 2, 2, 1))
sketch7.addConstraint(Sketcher.Constraint("Coincident", 2, 2, 3, 1))
sketch7.addConstraint(Sketcher.Constraint("Coincident", 3, 2, 0, 1))
sketch7.addConstraint(Sketcher.Constraint("Coincident", 4, 2, 5, 1))
sketch7.addConstraint(Sketcher.Constraint("Coincident", 5, 2, 6, 1))
sketch7.addConstraint(Sketcher.Constraint("Coincident", 6, 2, 7, 1))
sketch7.addConstraint(Sketcher.Constraint("Coincident", 7, 2, 4, 1))
sketch7.addConstraint(Sketcher.Constraint("Coincident", 8, 2, 9, 1))
sketch7.addConstraint(Sketcher.Constraint("Coincident", 9, 2, 10, 1))
sketch7.addConstraint(Sketcher.Constraint("Coincident", 10, 2, 11, 1))
sketch7.addConstraint(Sketcher.Constraint("Coincident", 11, 2, 8, 1))
sketch7.addConstraint(Sketcher.Constraint("Coincident", 12, 2, 13, 1))
sketch7.addConstraint(Sketcher.Constraint("Coincident", 13, 2, 14, 1))
sketch7.addConstraint(Sketcher.Constraint("Coincident", 14, 2, 15, 1))
sketch7.addConstraint(Sketcher.Constraint("Coincident", 15, 2, 12, 1))
sketch7.addConstraint(Sketcher.Constraint("Vertical", 0))
sketch7.addConstraint(Sketcher.Constraint("Horizontal", 1))
sketch7.addConstraint(Sketcher.Constraint("Vertical", 2))
sketch7.addConstraint(Sketcher.Constraint("Horizontal", 3))
sketch7.addConstraint(Sketcher.Constraint("Vertical", 4))
sketch7.addConstraint(Sketcher.Constraint("Horizontal", 5))
sketch7.addConstraint(Sketcher.Constraint("Vertical", 6))
sketch7.addConstraint(Sketcher.Constraint("Horizontal", 7))
sketch7.addConstraint(Sketcher.Constraint("Vertical", 8))
sketch7.addConstraint(Sketcher.Constraint("Horizontal", 9))
sketch7.addConstraint(Sketcher.Constraint("Vertical", 10))
sketch7.addConstraint(Sketcher.Constraint("Horizontal", 11))
sketch7.addConstraint(Sketcher.Constraint("Perpendicular", 12, 13))
sketch7.addConstraint(Sketcher.Constraint("Perpendicular", 13, 14))
sketch7.addConstraint(Sketcher.Constraint("Perpendicular", 14, 15))
sketch7.addConstraint(Sketcher.Constraint("Horizontal", 1, 2, 4, 2))
sketch7.addConstraint(Sketcher.Constraint("Horizontal", 3, 2, 6, 2))
sketch7.addConstraint(Sketcher.Constraint("Equal", 11, 8))
sketch7.addConstraint(Sketcher.Constraint("Equal", 12, 13))
sketch7.addConstraint(Sketcher.Constraint("DistanceX", 9, 2, 9, 1, Q("2 mm")))
sketch7.addConstraint(Sketcher.Constraint("DistanceY", 0, 2, 0, 1, Q("20 mm")))
sketch7.addConstraint(Sketcher.Constraint("Distance", 12, Q("2 mm")))
sketch7.addConstraint(Sketcher.Constraint("DistanceX", 1, 2, 1, 1, Q("5.5 mm")))
sketch7.addConstraint(Sketcher.Constraint("DistanceX", 5, 2, 5, 1, Q("4.9 mm")))
sketch7.addConstraint(Sketcher.Constraint("DistanceY", 0, 2, -1, 1, Q("10 mm")))
sketch7.addConstraint(Sketcher.Constraint("DistanceY", -1, 1, 8, 2, Q("15 mm")))
sketch7.addConstraint(Sketcher.Constraint("DistanceX", 8, 2, 3, 2, Q("10 mm")))
sketch7.addConstraint(Sketcher.Constraint("DistanceX", 4, 2, -1, 1, Q("11.6 mm")))
sketch7.addConstraint(Sketcher.Constraint("DistanceX", -1, 1, 0, 2, Q("16.520581 mm")))
sketch7.addConstraint(Sketcher.Constraint("DistanceX", 13, 2, -1, 1, Q("4.482689 mm")))
sketch7.addConstraint(Sketcher.Constraint("DistanceY", -1, 1, 13, 2, Q("17.010031 mm")))
sketch7.addConstraint(Sketcher.Constraint("DistanceX", 15, 2, -1, 1, Q("6.487141 mm")))
pad3 = body.newObject("PartDesign::Pad", "Pad002")
pad3.Profile = sketch7
pad3.Length = 2
pad3.Reversed = True
doc.recompute()

fillet = body.newObject("PartDesign::Fillet", "Fillet")
fillet.Base = (pad3, edges_at(pad3, [
    (16.521, 10, 8.4),
    (13.771, -10, 9.4),
    (16.521, -10, 8.4),
    (13.771, 10, 9.4),
    (16.521, 0, 7.4),
    (11.021, 0, 7.4),
    (-16.5, -10, 8.4),
    (-14.05, 10, 9.4),
    (-16.5, 10, 8.4),
    (-14.05, -10, 9.4),
    (-16.5, 0, 7.4),
    (-11.6, 0, 7.4),
    (6.521, 16, 9.4),
    (5.521, 17, 9.4),
    (5.521, 15, 7.4),
    (5.521, 17, 7.4),
    (-5.485, 17.012, 9.4),
    (-6.485, 16.014, 9.4),
    (-5.487, 15.012, 7.4),
]))
fillet.Radius = 0.5

sketch8 = body.newObject("Sketcher::SketchObject", "Sketch007")
sketch8.AttachmentSupport = (doc.getObject("XZ_Plane"), [""])
sketch8.MapMode = "FlatFace"
sketch8.AttachmentOffset = App.Placement(App.Vector(0, 0, -30.494289), App.Rotation())
sketch8.addGeometry(Part.Circle(App.Vector(0, 3, 0), App.Vector(0, 0, 1), 6), False)
sketch8.addConstraint(Sketcher.Constraint("PointOnObject", 0, 3, -2))
sketch8.addConstraint(Sketcher.Constraint("Diameter", 0, Q("11 mm")))
sketch8.addConstraint(Sketcher.Constraint("DistanceY", -1, 1, 0, 3, Q("3 mm")))
pocket5 = body.newObject("PartDesign::Pocket", "Pocket004")
pocket5.Profile = sketch8
pocket5.Type = "UpToFirst"
pocket5.Reversed = True
doc.recompute()

fillet2 = body.newObject("PartDesign::Fillet", "Fillet001")
fillet2.Base = (pocket5, edges_at(pocket5, [(4.61, 29.747, 0), (-4.61, 29.747, 0)]))
fillet2.Radius = 3

doc.recompute()
